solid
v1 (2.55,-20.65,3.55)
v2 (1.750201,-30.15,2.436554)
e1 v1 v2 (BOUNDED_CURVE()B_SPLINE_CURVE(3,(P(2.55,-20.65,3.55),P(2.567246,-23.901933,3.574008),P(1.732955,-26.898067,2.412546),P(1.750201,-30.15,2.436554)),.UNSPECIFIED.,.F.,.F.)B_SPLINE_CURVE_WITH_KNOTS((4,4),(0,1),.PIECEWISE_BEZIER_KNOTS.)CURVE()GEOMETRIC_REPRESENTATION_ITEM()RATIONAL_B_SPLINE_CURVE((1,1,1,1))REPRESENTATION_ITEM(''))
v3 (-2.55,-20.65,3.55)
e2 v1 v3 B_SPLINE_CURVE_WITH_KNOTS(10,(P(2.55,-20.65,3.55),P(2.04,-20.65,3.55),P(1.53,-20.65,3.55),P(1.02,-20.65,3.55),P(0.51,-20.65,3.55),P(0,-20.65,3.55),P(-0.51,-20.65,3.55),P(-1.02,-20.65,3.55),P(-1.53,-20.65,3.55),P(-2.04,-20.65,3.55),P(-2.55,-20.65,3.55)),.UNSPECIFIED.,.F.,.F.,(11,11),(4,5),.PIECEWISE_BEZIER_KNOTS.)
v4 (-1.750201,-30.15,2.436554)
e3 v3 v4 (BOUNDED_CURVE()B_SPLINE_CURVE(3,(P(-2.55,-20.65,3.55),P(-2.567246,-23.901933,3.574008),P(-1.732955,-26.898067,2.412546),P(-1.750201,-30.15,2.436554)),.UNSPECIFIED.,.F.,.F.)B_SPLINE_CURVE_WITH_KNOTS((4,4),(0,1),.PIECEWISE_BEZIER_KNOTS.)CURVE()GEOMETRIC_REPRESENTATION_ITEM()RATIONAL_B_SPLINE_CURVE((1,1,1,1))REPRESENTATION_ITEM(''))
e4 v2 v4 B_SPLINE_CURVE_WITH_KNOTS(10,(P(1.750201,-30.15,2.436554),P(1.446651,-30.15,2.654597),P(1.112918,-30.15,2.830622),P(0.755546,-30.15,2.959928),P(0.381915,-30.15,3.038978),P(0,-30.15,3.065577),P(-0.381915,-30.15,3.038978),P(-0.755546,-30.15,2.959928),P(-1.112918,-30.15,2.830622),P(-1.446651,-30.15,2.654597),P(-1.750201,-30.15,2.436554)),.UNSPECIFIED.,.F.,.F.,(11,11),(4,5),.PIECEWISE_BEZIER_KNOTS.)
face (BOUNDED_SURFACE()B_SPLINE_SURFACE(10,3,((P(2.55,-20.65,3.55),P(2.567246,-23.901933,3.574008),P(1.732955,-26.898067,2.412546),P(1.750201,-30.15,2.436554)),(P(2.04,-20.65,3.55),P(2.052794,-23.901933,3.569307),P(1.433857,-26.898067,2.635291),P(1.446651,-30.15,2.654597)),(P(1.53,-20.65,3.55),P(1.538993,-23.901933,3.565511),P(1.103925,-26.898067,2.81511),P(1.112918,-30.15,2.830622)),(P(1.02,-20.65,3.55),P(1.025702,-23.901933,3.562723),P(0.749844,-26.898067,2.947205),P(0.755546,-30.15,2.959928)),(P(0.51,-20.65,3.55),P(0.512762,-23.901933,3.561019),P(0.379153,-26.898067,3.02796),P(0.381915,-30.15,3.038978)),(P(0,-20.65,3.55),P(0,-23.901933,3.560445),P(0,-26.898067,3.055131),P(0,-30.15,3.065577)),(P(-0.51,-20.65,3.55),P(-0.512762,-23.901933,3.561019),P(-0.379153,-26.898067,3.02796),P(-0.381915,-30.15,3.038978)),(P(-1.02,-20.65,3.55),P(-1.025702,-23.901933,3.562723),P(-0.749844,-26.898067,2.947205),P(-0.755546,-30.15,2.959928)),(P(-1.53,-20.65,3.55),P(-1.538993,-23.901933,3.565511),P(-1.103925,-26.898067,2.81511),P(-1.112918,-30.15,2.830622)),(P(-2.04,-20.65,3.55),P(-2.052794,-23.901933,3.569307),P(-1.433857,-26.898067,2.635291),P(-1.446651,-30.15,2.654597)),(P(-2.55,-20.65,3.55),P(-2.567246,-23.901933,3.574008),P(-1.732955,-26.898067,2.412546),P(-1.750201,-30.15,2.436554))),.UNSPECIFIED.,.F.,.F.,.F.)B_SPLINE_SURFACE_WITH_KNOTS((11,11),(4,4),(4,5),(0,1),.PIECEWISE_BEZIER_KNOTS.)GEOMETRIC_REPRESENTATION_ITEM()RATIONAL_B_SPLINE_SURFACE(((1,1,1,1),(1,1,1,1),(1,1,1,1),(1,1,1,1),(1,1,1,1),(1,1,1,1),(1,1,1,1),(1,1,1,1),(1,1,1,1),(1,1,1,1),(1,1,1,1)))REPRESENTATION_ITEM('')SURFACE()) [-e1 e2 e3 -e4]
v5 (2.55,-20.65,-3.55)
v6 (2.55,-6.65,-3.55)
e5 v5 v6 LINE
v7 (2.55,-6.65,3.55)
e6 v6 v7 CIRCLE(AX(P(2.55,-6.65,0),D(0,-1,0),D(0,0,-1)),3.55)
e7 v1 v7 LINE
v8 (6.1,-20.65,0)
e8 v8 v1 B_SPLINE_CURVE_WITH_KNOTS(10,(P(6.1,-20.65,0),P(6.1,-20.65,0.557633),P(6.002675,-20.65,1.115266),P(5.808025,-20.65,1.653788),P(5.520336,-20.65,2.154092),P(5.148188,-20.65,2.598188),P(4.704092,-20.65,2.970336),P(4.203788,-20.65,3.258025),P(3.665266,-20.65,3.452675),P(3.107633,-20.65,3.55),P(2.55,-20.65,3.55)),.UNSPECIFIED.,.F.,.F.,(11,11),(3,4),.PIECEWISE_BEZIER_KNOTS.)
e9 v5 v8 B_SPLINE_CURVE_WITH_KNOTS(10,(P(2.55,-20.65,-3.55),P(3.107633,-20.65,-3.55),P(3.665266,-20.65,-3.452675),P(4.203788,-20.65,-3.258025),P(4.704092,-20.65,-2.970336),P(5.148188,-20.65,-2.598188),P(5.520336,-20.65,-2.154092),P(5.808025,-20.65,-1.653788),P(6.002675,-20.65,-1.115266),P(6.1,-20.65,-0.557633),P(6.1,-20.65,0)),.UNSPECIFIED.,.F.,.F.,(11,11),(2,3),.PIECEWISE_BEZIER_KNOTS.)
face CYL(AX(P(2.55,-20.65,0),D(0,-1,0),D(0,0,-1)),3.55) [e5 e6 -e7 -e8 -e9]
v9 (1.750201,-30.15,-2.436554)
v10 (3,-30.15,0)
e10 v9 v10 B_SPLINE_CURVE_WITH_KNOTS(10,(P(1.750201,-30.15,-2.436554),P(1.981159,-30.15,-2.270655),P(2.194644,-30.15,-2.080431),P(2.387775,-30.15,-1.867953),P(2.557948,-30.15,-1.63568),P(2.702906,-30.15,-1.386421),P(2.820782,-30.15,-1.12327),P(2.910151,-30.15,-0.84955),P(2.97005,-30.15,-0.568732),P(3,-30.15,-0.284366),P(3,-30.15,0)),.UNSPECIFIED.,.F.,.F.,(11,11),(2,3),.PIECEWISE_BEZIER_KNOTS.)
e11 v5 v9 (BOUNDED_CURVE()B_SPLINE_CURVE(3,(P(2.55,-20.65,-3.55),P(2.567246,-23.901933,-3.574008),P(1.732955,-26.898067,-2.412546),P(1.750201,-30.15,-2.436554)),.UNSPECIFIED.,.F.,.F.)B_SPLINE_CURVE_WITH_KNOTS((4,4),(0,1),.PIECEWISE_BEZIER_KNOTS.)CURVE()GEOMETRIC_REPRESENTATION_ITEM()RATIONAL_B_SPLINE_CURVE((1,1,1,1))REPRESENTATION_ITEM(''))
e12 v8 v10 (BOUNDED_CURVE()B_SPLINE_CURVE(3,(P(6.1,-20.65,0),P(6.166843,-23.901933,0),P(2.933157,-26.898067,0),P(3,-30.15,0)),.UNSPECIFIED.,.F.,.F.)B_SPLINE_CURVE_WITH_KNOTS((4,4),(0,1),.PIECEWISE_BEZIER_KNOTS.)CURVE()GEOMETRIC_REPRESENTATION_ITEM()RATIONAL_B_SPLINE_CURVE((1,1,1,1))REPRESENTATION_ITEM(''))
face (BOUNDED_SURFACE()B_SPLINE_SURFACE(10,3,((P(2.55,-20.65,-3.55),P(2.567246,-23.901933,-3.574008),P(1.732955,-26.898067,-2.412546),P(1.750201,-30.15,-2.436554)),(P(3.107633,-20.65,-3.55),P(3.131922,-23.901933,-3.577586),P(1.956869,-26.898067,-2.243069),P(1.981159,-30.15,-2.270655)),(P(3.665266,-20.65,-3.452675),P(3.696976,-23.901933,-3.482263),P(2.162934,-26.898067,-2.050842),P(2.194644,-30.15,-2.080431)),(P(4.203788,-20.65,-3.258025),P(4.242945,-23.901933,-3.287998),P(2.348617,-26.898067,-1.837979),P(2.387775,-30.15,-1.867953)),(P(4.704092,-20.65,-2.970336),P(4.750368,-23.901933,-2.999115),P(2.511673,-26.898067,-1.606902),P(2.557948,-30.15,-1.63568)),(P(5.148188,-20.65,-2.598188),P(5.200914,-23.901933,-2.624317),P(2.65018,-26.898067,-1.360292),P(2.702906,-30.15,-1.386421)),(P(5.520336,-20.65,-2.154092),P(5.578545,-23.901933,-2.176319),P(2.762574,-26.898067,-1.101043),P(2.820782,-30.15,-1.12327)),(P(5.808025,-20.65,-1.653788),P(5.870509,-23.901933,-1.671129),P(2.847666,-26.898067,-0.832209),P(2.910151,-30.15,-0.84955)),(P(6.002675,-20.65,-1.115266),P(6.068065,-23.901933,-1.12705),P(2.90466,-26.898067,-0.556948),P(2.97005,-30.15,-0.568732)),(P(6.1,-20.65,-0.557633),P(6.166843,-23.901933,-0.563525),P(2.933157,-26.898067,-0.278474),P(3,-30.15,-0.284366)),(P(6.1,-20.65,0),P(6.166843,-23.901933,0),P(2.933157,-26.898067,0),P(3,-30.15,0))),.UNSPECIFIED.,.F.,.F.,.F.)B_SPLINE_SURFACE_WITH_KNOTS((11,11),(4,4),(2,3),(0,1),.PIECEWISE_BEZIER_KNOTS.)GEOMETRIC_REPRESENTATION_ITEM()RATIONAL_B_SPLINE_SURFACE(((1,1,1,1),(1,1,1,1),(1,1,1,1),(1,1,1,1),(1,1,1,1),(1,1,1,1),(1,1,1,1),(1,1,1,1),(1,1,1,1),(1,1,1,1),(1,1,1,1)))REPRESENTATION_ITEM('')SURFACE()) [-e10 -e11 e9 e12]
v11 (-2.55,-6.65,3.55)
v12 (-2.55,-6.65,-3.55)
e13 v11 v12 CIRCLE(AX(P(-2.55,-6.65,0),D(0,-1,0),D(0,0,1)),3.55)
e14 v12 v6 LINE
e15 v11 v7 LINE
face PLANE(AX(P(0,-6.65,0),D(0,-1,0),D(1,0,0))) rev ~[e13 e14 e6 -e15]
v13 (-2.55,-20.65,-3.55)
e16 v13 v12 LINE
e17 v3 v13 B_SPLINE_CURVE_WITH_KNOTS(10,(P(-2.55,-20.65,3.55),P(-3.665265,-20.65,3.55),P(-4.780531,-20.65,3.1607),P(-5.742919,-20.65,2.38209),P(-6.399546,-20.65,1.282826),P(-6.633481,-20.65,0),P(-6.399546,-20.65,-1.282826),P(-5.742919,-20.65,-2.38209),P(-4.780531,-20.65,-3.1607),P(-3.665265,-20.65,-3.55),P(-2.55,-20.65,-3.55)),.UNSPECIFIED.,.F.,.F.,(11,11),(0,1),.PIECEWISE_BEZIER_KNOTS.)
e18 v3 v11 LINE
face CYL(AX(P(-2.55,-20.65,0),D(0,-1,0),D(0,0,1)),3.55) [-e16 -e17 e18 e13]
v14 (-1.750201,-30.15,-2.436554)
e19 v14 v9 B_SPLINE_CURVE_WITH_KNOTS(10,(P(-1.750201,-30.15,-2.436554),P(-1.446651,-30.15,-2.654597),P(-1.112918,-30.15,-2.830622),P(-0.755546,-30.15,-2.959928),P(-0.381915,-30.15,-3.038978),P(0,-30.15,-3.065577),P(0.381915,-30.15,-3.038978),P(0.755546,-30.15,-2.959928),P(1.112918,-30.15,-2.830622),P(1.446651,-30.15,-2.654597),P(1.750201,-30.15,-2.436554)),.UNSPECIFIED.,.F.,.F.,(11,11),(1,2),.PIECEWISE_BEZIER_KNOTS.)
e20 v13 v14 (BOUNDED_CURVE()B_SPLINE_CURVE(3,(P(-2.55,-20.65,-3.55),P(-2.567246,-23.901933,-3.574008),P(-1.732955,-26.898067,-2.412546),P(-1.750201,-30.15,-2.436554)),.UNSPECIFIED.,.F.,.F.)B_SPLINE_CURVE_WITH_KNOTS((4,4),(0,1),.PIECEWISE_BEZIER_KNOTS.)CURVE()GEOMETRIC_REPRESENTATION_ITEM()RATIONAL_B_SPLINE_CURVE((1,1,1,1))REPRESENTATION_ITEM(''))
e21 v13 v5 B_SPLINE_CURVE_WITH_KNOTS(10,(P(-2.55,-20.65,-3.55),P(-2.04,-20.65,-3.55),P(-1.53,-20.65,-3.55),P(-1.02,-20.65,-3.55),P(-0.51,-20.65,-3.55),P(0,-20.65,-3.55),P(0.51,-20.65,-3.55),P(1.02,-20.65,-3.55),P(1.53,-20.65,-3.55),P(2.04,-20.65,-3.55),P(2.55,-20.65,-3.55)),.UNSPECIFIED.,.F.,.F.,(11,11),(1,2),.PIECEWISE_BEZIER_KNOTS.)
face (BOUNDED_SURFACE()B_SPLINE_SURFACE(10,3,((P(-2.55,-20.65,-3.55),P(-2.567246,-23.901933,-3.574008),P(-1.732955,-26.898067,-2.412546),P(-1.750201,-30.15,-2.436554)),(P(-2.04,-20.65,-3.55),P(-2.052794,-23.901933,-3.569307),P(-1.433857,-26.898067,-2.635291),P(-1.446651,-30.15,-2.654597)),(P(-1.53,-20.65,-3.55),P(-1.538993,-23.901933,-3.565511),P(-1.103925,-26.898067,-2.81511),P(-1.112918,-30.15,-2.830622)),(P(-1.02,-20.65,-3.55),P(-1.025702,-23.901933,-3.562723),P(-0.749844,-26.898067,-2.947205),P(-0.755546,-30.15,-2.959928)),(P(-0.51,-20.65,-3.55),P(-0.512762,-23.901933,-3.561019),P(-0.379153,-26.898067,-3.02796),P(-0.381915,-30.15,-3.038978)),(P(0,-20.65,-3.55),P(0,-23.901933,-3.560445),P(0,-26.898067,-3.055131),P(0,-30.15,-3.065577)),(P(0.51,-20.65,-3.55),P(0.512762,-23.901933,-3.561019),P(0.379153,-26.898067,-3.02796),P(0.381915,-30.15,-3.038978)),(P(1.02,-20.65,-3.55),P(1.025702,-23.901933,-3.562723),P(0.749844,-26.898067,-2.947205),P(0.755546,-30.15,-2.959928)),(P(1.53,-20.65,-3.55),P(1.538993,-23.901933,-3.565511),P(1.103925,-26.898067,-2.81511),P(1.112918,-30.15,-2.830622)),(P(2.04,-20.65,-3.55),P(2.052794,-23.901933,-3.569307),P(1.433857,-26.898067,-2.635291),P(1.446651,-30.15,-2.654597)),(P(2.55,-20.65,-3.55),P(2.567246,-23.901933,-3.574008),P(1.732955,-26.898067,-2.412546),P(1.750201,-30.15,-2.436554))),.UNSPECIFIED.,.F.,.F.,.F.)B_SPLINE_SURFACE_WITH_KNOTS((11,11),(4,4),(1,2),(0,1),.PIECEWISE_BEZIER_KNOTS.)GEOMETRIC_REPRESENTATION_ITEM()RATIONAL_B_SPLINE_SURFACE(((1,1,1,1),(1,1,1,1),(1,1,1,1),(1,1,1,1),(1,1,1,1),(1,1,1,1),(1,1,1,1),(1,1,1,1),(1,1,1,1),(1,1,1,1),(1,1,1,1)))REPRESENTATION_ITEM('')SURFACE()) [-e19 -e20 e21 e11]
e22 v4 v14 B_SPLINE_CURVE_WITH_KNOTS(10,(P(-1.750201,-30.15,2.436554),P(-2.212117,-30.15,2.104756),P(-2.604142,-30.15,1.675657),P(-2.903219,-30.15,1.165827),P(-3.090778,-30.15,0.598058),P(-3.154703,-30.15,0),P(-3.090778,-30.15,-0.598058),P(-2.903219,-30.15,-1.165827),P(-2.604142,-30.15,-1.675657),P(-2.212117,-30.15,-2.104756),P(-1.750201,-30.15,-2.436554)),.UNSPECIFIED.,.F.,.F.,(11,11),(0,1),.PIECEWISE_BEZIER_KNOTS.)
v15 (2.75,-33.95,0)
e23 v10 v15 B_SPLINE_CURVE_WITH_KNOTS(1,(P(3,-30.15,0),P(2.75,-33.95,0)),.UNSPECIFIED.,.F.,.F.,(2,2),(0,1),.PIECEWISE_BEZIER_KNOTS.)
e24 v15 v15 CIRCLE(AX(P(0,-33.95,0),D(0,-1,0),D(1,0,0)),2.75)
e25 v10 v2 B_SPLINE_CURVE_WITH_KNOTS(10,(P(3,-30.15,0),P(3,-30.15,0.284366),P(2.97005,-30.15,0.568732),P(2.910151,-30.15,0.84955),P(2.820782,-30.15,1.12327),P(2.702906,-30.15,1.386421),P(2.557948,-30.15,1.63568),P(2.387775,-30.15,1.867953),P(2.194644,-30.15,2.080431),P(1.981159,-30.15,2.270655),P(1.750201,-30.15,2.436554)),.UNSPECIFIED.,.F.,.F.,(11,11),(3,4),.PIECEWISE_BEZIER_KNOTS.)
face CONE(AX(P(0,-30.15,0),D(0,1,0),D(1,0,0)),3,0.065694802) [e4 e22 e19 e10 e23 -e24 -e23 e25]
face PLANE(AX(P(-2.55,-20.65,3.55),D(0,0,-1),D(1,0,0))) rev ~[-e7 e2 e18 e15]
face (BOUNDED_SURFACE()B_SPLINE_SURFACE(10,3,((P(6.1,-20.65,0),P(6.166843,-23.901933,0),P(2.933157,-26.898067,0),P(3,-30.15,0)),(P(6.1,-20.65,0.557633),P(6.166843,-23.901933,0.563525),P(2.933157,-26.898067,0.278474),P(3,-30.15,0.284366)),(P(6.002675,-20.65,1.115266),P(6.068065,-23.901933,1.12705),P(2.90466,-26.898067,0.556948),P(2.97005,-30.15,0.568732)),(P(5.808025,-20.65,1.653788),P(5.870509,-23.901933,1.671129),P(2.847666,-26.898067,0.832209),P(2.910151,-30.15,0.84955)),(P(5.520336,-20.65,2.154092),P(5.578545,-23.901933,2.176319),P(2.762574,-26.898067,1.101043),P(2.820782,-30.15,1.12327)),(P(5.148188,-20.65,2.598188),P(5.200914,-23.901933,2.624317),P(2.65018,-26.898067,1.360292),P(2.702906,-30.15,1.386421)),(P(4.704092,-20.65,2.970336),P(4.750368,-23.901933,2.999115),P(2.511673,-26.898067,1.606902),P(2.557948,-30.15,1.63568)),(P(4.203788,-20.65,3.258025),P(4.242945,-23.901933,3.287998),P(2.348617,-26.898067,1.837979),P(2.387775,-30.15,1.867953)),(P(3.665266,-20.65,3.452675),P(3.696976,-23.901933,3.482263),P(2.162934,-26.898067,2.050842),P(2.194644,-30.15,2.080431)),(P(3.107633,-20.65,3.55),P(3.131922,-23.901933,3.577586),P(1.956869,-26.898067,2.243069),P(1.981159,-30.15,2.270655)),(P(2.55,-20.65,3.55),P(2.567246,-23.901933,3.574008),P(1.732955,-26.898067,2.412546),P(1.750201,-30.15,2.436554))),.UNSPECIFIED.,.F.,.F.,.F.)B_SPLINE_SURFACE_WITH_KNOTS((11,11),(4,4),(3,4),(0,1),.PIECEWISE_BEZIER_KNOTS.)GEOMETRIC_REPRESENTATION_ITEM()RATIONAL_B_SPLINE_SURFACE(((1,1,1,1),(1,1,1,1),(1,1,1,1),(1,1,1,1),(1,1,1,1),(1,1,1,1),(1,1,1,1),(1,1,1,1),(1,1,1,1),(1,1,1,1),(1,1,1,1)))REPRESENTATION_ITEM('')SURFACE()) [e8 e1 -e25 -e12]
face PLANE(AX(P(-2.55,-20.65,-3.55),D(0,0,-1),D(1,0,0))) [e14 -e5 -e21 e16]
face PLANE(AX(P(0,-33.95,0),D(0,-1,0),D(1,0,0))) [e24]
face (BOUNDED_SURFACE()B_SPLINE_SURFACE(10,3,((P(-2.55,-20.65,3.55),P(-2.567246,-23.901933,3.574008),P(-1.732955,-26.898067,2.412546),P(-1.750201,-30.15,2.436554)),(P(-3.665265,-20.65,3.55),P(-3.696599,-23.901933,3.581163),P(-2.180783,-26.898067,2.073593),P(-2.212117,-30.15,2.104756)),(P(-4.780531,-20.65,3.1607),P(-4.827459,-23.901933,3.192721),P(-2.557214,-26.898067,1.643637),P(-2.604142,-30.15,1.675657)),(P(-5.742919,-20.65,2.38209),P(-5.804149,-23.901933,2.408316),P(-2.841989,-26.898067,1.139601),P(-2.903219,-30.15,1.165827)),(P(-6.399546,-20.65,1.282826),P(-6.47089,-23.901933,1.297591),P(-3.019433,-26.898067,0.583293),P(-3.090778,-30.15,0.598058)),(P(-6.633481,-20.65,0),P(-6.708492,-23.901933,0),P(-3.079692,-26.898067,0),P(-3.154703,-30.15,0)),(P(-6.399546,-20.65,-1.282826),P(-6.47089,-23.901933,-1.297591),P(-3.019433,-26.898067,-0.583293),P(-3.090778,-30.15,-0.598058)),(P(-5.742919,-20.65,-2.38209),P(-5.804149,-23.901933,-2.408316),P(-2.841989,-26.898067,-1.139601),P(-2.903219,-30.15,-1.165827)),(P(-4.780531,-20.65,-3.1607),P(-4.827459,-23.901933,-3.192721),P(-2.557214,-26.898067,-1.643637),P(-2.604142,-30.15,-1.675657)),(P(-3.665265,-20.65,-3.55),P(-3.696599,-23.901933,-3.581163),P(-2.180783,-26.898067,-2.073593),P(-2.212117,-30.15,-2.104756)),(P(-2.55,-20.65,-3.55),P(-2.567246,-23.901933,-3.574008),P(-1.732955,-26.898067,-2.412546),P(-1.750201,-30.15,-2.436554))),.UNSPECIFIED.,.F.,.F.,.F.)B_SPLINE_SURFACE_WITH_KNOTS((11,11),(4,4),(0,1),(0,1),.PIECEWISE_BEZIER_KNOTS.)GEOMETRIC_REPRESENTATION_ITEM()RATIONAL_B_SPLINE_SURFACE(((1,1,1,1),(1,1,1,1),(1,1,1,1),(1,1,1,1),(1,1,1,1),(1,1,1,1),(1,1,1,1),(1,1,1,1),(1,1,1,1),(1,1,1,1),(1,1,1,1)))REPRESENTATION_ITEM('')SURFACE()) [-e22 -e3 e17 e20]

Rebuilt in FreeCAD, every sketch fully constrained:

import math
import FreeCAD as App
import Part
import Sketcher

doc = App.newDocument("Part")
body = doc.addObject("PartDesign::Body", "Body")

# Sketch on XY plane
sketch1 = body.newObject("Sketcher::SketchObject", "Sketch")
sketch1.AttachmentSupport = (doc.getObject("XY_Plane"), [""])
sketch1.MapMode = "FlatFace"
sketch1.AttachmentOffset = App.Placement(App.Vector(0, 0, 14), App.Rotation())
sketch1.addGeometry(Part.ArcOfCircle(Part.Circle(App.Vector(-2.5, 0, 0), App.Vector(0, 0, 1), 3.5), math.radians(90), math.radians(270)), False)
sketch1.addGeometry(Part.LineSegment(App.Vector(-2.5, -3.5, 0), App.Vector(2.5, -3.5, 0)), False)
sketch1.addGeometry(Part.ArcOfCircle(Part.Circle(App.Vector(2.5, 0, 0), App.Vector(0, 0, 1), 3.5), math.radians(-90), math.radians(90)), False)
sketch1.addGeometry(Part.LineSegment(App.Vector(2.5, 3.5, 0), App.Vector(-2.5, 3.5, 0)), False)
sketch1.addConstraint(Sketcher.Constraint("Tangent", 0, 2, 1, 1))
sketch1.addConstraint(Sketcher.Constraint("Tangent", 1, 2, 2, 1))
sketch1.addConstraint(Sketcher.Constraint("Tangent", 2, 2, 3, 1))
sketch1.addConstraint(Sketcher.Constraint("Tangent", 3, 2, 0, 1))
sketch1.addConstraint(Sketcher.Constraint("Horizontal", 1))
sketch1.addConstraint(Sketcher.Constraint("Horizontal", 3))
sketch1.addConstraint(Sketcher.Constraint("Symmetric", 0, 3, 2, 3, -1, 1))
sketch1.addConstraint(Sketcher.Constraint("Radius", 0, 3.55))
sketch1.addConstraint(Sketcher.Constraint("DistanceX", 1, 1, 1, 2, 5.1))

# Sketch on XY plane
sketch2 = body.newObject("Sketcher::SketchObject", "Sketch001")
sketch2.AttachmentSupport = (doc.getObject("XY_Plane"), [""])
sketch2.MapMode = "FlatFace"
sketch2.AttachmentOffset = App.Placement(App.Vector(0, 0, 14.2), App.Rotation())
sketch2.addGeometry(Part.ArcOfCircle(Part.Circle(App.Vector(-2.5, 0, 0), App.Vector(0, 0, 1), 3.5), math.radians(90), math.radians(270)), False)
sketch2.addGeometry(Part.LineSegment(App.Vector(-2.5, -3.5, 0), App.Vector(2.5, -3.5, 0)), False)
sketch2.addGeometry(Part.ArcOfCircle(Part.Circle(App.Vector(2.5, 0, 0), App.Vector(0, 0, 1), 3.5), math.radians(-90), math.radians(90)), False)
sketch2.addGeometry(Part.LineSegment(App.Vector(2.5, 3.5, 0), App.Vector(-2.5, 3.5, 0)), False)
sketch2.addConstraint(Sketcher.Constraint("Tangent", 0, 2, 1, 1))
sketch2.addConstraint(Sketcher.Constraint("Tangent", 1, 2, 2, 1))
sketch2.addConstraint(Sketcher.Constraint("Tangent", 2, 2, 3, 1))
sketch2.addConstraint(Sketcher.Constraint("Tangent", 3, 2, 0, 1))
sketch2.addConstraint(Sketcher.Constraint("Horizontal", 1))
sketch2.addConstraint(Sketcher.Constraint("Horizontal", 3))
sketch2.addConstraint(Sketcher.Constraint("Symmetric", 0, 3, 2, 3, -1, 1))
sketch2.addConstraint(Sketcher.Constraint("Radius", 0, 3.55))
sketch2.addConstraint(Sketcher.Constraint("DistanceX", 1, 1, 1, 2, 5.1))

# Sketch on XY plane
sketch3 = body.newObject("Sketcher::SketchObject", "Sketch002")
sketch3.AttachmentSupport = (doc.getObject("XY_Plane"), [""])
sketch3.MapMode = "FlatFace"
sketch3.AttachmentOffset = App.Placement(App.Vector(0, 0, 23.3), App.Rotation())
sketch3.addGeometry(Part.Circle(App.Vector(0, 0, 0), App.Vector(0, 0, 1), 3), False)
sketch3.addConstraint(Sketcher.Constraint("Coincident", 0, 3, -1, 1))
sketch3.addConstraint(Sketcher.Constraint("Diameter", 0, 6.0))

# Sketch on XY plane
sketch4 = body.newObject("Sketcher::SketchObject", "Sketch003")
sketch4.AttachmentSupport = (doc.getObject("XY_Plane"), [""])
sketch4.MapMode = "FlatFace"
sketch4.AttachmentOffset = App.Placement(App.Vector(0, 0, 23.5), App.Rotation())
sketch4.addGeometry(Part.Circle(App.Vector(0, 0, 0), App.Vector(0, 0, 1), 3), False)
sketch4.addConstraint(Sketcher.Constraint("Coincident", 0, 3, -1, 1))
sketch4.addConstraint(Sketcher.Constraint("Diameter", 0, 6.0))

additiveloft = body.newObject("PartDesign::AdditiveLoft", "AdditiveLoft")
additiveloft.Profile = sketch1
additiveloft.Sections = [sketch2, sketch3, sketch4]

# Sketch on XY plane
sketch5 = body.newObject("Sketcher::SketchObject", "Sketch004")
sketch5.AttachmentSupport = (doc.getObject("XY_Plane"), [""])
sketch5.MapMode = "FlatFace"
sketch5.AttachmentOffset = App.Placement(App.Vector(0, 0, 23.5), App.Rotation())
sketch5.addGeometry(Part.Circle(App.Vector(0, 0, 0), App.Vector(0, 0, 1), 3), False)
sketch5.addConstraint(Sketcher.Constraint("Coincident", 0, 3, -1, 1))
sketch5.addConstraint(Sketcher.Constraint("Diameter", 0, 6.0))

# Sketch on XY plane
sketch6 = body.newObject("Sketcher::SketchObject", "Sketch005")
sketch6.AttachmentSupport = (doc.getObject("XY_Plane"), [""])
sketch6.MapMode = "FlatFace"
sketch6.AttachmentOffset = App.Placement(App.Vector(0, 0, 27.3), App.Rotation())
sketch6.addGeometry(Part.Circle(App.Vector(0, 0, 0), App.Vector(0, 0, 1), 2.8), False)
sketch6.addConstraint(Sketcher.Constraint("Coincident", 0, 3, -1, 1))
sketch6.addConstraint(Sketcher.Constraint("Diameter", 0, 5.5))

additiveloft2 = body.newObject("PartDesign::AdditiveLoft", "AdditiveLoft001")
additiveloft2.Profile = sketch5
additiveloft2.Sections = [sketch6]

# Sketch on XY plane
sketch7 = body.newObject("Sketcher::SketchObject", "Sketch006")
sketch7.AttachmentSupport = (doc.getObject("XY_Plane"), [""])
sketch7.MapMode = "FlatFace"
sketch7.AttachmentOffset = App.Placement(App.Vector(0, 0, 14), App.Rotation())
sketch7.addGeometry(Part.ArcOfCircle(Part.Circle(App.Vector(-2.5, 0, 0), App.Vector(0, 0, 1), 3.5), math.radians(90), math.radians(270)), False)
sketch7.addGeometry(Part.LineSegment(App.Vector(-2.5, -3.5, 0), App.Vector(2.5, -3.5, 0)), False)
sketch7.addGeometry(Part.ArcOfCircle(Part.Circle(App.Vector(2.5, 0, 0), App.Vector(0, 0, 1), 3.5), math.radians(-90), math.radians(90)), False)
sketch7.addGeometry(Part.LineSegment(App.Vector(2.5, 3.5, 0), App.Vector(-2.5, 3.5, 0)), False)
sketch7.addConstraint(Sketcher.Constraint("Tangent", 0, 2, 1, 1))
sketch7.addConstraint(Sketcher.Constraint("Tangent", 1, 2, 2, 1))
sketch7.addConstraint(Sketcher.Constraint("Tangent", 2, 2, 3, 1))
sketch7.addConstraint(Sketcher.Constraint("Tangent", 3, 2, 0, 1))
sketch7.addConstraint(Sketcher.Constraint("Horizontal", 1))
sketch7.addConstraint(Sketcher.Constraint("Horizontal", 3))
sketch7.addConstraint(Sketcher.Constraint("Symmetric", 0, 3, 2, 3, -1, 1))
sketch7.addConstraint(Sketcher.Constraint("Radius", 0, 3.55))
sketch7.addConstraint(Sketcher.Constraint("DistanceX", 1, 1, 1, 2, 5.1))
pad1 = body.newObject("PartDesign::Pad", "Pad")
pad1.Profile = sketch7
pad1.Length = 14
pad1.Reversed = True
body2 = doc.addObject("PartDesign::Body", "Body001")
doc.recompute()

body.Placement = App.Placement(App.Vector(0, 0, 0), App.Rotation(App.Vector(1, 0, 0), 90))
boolean = body2.newObject("PartDesign::Boolean", "Boolean")
boolean.Type = "Fuse"
boolean.addObjects([body])
body3 = doc.addObject("PartDesign::Body", "Body002")
doc.recompute()

body2.Placement = App.Placement(App.Vector(0, -6.65, 0), App.Rotation(App.Vector(0, 0, 1), 0))
boolean2 = body3.newObject("PartDesign::Boolean", "Boolean001")
boolean2.Type = "Fuse"
boolean2.addObjects([body2])

doc.recompute()
